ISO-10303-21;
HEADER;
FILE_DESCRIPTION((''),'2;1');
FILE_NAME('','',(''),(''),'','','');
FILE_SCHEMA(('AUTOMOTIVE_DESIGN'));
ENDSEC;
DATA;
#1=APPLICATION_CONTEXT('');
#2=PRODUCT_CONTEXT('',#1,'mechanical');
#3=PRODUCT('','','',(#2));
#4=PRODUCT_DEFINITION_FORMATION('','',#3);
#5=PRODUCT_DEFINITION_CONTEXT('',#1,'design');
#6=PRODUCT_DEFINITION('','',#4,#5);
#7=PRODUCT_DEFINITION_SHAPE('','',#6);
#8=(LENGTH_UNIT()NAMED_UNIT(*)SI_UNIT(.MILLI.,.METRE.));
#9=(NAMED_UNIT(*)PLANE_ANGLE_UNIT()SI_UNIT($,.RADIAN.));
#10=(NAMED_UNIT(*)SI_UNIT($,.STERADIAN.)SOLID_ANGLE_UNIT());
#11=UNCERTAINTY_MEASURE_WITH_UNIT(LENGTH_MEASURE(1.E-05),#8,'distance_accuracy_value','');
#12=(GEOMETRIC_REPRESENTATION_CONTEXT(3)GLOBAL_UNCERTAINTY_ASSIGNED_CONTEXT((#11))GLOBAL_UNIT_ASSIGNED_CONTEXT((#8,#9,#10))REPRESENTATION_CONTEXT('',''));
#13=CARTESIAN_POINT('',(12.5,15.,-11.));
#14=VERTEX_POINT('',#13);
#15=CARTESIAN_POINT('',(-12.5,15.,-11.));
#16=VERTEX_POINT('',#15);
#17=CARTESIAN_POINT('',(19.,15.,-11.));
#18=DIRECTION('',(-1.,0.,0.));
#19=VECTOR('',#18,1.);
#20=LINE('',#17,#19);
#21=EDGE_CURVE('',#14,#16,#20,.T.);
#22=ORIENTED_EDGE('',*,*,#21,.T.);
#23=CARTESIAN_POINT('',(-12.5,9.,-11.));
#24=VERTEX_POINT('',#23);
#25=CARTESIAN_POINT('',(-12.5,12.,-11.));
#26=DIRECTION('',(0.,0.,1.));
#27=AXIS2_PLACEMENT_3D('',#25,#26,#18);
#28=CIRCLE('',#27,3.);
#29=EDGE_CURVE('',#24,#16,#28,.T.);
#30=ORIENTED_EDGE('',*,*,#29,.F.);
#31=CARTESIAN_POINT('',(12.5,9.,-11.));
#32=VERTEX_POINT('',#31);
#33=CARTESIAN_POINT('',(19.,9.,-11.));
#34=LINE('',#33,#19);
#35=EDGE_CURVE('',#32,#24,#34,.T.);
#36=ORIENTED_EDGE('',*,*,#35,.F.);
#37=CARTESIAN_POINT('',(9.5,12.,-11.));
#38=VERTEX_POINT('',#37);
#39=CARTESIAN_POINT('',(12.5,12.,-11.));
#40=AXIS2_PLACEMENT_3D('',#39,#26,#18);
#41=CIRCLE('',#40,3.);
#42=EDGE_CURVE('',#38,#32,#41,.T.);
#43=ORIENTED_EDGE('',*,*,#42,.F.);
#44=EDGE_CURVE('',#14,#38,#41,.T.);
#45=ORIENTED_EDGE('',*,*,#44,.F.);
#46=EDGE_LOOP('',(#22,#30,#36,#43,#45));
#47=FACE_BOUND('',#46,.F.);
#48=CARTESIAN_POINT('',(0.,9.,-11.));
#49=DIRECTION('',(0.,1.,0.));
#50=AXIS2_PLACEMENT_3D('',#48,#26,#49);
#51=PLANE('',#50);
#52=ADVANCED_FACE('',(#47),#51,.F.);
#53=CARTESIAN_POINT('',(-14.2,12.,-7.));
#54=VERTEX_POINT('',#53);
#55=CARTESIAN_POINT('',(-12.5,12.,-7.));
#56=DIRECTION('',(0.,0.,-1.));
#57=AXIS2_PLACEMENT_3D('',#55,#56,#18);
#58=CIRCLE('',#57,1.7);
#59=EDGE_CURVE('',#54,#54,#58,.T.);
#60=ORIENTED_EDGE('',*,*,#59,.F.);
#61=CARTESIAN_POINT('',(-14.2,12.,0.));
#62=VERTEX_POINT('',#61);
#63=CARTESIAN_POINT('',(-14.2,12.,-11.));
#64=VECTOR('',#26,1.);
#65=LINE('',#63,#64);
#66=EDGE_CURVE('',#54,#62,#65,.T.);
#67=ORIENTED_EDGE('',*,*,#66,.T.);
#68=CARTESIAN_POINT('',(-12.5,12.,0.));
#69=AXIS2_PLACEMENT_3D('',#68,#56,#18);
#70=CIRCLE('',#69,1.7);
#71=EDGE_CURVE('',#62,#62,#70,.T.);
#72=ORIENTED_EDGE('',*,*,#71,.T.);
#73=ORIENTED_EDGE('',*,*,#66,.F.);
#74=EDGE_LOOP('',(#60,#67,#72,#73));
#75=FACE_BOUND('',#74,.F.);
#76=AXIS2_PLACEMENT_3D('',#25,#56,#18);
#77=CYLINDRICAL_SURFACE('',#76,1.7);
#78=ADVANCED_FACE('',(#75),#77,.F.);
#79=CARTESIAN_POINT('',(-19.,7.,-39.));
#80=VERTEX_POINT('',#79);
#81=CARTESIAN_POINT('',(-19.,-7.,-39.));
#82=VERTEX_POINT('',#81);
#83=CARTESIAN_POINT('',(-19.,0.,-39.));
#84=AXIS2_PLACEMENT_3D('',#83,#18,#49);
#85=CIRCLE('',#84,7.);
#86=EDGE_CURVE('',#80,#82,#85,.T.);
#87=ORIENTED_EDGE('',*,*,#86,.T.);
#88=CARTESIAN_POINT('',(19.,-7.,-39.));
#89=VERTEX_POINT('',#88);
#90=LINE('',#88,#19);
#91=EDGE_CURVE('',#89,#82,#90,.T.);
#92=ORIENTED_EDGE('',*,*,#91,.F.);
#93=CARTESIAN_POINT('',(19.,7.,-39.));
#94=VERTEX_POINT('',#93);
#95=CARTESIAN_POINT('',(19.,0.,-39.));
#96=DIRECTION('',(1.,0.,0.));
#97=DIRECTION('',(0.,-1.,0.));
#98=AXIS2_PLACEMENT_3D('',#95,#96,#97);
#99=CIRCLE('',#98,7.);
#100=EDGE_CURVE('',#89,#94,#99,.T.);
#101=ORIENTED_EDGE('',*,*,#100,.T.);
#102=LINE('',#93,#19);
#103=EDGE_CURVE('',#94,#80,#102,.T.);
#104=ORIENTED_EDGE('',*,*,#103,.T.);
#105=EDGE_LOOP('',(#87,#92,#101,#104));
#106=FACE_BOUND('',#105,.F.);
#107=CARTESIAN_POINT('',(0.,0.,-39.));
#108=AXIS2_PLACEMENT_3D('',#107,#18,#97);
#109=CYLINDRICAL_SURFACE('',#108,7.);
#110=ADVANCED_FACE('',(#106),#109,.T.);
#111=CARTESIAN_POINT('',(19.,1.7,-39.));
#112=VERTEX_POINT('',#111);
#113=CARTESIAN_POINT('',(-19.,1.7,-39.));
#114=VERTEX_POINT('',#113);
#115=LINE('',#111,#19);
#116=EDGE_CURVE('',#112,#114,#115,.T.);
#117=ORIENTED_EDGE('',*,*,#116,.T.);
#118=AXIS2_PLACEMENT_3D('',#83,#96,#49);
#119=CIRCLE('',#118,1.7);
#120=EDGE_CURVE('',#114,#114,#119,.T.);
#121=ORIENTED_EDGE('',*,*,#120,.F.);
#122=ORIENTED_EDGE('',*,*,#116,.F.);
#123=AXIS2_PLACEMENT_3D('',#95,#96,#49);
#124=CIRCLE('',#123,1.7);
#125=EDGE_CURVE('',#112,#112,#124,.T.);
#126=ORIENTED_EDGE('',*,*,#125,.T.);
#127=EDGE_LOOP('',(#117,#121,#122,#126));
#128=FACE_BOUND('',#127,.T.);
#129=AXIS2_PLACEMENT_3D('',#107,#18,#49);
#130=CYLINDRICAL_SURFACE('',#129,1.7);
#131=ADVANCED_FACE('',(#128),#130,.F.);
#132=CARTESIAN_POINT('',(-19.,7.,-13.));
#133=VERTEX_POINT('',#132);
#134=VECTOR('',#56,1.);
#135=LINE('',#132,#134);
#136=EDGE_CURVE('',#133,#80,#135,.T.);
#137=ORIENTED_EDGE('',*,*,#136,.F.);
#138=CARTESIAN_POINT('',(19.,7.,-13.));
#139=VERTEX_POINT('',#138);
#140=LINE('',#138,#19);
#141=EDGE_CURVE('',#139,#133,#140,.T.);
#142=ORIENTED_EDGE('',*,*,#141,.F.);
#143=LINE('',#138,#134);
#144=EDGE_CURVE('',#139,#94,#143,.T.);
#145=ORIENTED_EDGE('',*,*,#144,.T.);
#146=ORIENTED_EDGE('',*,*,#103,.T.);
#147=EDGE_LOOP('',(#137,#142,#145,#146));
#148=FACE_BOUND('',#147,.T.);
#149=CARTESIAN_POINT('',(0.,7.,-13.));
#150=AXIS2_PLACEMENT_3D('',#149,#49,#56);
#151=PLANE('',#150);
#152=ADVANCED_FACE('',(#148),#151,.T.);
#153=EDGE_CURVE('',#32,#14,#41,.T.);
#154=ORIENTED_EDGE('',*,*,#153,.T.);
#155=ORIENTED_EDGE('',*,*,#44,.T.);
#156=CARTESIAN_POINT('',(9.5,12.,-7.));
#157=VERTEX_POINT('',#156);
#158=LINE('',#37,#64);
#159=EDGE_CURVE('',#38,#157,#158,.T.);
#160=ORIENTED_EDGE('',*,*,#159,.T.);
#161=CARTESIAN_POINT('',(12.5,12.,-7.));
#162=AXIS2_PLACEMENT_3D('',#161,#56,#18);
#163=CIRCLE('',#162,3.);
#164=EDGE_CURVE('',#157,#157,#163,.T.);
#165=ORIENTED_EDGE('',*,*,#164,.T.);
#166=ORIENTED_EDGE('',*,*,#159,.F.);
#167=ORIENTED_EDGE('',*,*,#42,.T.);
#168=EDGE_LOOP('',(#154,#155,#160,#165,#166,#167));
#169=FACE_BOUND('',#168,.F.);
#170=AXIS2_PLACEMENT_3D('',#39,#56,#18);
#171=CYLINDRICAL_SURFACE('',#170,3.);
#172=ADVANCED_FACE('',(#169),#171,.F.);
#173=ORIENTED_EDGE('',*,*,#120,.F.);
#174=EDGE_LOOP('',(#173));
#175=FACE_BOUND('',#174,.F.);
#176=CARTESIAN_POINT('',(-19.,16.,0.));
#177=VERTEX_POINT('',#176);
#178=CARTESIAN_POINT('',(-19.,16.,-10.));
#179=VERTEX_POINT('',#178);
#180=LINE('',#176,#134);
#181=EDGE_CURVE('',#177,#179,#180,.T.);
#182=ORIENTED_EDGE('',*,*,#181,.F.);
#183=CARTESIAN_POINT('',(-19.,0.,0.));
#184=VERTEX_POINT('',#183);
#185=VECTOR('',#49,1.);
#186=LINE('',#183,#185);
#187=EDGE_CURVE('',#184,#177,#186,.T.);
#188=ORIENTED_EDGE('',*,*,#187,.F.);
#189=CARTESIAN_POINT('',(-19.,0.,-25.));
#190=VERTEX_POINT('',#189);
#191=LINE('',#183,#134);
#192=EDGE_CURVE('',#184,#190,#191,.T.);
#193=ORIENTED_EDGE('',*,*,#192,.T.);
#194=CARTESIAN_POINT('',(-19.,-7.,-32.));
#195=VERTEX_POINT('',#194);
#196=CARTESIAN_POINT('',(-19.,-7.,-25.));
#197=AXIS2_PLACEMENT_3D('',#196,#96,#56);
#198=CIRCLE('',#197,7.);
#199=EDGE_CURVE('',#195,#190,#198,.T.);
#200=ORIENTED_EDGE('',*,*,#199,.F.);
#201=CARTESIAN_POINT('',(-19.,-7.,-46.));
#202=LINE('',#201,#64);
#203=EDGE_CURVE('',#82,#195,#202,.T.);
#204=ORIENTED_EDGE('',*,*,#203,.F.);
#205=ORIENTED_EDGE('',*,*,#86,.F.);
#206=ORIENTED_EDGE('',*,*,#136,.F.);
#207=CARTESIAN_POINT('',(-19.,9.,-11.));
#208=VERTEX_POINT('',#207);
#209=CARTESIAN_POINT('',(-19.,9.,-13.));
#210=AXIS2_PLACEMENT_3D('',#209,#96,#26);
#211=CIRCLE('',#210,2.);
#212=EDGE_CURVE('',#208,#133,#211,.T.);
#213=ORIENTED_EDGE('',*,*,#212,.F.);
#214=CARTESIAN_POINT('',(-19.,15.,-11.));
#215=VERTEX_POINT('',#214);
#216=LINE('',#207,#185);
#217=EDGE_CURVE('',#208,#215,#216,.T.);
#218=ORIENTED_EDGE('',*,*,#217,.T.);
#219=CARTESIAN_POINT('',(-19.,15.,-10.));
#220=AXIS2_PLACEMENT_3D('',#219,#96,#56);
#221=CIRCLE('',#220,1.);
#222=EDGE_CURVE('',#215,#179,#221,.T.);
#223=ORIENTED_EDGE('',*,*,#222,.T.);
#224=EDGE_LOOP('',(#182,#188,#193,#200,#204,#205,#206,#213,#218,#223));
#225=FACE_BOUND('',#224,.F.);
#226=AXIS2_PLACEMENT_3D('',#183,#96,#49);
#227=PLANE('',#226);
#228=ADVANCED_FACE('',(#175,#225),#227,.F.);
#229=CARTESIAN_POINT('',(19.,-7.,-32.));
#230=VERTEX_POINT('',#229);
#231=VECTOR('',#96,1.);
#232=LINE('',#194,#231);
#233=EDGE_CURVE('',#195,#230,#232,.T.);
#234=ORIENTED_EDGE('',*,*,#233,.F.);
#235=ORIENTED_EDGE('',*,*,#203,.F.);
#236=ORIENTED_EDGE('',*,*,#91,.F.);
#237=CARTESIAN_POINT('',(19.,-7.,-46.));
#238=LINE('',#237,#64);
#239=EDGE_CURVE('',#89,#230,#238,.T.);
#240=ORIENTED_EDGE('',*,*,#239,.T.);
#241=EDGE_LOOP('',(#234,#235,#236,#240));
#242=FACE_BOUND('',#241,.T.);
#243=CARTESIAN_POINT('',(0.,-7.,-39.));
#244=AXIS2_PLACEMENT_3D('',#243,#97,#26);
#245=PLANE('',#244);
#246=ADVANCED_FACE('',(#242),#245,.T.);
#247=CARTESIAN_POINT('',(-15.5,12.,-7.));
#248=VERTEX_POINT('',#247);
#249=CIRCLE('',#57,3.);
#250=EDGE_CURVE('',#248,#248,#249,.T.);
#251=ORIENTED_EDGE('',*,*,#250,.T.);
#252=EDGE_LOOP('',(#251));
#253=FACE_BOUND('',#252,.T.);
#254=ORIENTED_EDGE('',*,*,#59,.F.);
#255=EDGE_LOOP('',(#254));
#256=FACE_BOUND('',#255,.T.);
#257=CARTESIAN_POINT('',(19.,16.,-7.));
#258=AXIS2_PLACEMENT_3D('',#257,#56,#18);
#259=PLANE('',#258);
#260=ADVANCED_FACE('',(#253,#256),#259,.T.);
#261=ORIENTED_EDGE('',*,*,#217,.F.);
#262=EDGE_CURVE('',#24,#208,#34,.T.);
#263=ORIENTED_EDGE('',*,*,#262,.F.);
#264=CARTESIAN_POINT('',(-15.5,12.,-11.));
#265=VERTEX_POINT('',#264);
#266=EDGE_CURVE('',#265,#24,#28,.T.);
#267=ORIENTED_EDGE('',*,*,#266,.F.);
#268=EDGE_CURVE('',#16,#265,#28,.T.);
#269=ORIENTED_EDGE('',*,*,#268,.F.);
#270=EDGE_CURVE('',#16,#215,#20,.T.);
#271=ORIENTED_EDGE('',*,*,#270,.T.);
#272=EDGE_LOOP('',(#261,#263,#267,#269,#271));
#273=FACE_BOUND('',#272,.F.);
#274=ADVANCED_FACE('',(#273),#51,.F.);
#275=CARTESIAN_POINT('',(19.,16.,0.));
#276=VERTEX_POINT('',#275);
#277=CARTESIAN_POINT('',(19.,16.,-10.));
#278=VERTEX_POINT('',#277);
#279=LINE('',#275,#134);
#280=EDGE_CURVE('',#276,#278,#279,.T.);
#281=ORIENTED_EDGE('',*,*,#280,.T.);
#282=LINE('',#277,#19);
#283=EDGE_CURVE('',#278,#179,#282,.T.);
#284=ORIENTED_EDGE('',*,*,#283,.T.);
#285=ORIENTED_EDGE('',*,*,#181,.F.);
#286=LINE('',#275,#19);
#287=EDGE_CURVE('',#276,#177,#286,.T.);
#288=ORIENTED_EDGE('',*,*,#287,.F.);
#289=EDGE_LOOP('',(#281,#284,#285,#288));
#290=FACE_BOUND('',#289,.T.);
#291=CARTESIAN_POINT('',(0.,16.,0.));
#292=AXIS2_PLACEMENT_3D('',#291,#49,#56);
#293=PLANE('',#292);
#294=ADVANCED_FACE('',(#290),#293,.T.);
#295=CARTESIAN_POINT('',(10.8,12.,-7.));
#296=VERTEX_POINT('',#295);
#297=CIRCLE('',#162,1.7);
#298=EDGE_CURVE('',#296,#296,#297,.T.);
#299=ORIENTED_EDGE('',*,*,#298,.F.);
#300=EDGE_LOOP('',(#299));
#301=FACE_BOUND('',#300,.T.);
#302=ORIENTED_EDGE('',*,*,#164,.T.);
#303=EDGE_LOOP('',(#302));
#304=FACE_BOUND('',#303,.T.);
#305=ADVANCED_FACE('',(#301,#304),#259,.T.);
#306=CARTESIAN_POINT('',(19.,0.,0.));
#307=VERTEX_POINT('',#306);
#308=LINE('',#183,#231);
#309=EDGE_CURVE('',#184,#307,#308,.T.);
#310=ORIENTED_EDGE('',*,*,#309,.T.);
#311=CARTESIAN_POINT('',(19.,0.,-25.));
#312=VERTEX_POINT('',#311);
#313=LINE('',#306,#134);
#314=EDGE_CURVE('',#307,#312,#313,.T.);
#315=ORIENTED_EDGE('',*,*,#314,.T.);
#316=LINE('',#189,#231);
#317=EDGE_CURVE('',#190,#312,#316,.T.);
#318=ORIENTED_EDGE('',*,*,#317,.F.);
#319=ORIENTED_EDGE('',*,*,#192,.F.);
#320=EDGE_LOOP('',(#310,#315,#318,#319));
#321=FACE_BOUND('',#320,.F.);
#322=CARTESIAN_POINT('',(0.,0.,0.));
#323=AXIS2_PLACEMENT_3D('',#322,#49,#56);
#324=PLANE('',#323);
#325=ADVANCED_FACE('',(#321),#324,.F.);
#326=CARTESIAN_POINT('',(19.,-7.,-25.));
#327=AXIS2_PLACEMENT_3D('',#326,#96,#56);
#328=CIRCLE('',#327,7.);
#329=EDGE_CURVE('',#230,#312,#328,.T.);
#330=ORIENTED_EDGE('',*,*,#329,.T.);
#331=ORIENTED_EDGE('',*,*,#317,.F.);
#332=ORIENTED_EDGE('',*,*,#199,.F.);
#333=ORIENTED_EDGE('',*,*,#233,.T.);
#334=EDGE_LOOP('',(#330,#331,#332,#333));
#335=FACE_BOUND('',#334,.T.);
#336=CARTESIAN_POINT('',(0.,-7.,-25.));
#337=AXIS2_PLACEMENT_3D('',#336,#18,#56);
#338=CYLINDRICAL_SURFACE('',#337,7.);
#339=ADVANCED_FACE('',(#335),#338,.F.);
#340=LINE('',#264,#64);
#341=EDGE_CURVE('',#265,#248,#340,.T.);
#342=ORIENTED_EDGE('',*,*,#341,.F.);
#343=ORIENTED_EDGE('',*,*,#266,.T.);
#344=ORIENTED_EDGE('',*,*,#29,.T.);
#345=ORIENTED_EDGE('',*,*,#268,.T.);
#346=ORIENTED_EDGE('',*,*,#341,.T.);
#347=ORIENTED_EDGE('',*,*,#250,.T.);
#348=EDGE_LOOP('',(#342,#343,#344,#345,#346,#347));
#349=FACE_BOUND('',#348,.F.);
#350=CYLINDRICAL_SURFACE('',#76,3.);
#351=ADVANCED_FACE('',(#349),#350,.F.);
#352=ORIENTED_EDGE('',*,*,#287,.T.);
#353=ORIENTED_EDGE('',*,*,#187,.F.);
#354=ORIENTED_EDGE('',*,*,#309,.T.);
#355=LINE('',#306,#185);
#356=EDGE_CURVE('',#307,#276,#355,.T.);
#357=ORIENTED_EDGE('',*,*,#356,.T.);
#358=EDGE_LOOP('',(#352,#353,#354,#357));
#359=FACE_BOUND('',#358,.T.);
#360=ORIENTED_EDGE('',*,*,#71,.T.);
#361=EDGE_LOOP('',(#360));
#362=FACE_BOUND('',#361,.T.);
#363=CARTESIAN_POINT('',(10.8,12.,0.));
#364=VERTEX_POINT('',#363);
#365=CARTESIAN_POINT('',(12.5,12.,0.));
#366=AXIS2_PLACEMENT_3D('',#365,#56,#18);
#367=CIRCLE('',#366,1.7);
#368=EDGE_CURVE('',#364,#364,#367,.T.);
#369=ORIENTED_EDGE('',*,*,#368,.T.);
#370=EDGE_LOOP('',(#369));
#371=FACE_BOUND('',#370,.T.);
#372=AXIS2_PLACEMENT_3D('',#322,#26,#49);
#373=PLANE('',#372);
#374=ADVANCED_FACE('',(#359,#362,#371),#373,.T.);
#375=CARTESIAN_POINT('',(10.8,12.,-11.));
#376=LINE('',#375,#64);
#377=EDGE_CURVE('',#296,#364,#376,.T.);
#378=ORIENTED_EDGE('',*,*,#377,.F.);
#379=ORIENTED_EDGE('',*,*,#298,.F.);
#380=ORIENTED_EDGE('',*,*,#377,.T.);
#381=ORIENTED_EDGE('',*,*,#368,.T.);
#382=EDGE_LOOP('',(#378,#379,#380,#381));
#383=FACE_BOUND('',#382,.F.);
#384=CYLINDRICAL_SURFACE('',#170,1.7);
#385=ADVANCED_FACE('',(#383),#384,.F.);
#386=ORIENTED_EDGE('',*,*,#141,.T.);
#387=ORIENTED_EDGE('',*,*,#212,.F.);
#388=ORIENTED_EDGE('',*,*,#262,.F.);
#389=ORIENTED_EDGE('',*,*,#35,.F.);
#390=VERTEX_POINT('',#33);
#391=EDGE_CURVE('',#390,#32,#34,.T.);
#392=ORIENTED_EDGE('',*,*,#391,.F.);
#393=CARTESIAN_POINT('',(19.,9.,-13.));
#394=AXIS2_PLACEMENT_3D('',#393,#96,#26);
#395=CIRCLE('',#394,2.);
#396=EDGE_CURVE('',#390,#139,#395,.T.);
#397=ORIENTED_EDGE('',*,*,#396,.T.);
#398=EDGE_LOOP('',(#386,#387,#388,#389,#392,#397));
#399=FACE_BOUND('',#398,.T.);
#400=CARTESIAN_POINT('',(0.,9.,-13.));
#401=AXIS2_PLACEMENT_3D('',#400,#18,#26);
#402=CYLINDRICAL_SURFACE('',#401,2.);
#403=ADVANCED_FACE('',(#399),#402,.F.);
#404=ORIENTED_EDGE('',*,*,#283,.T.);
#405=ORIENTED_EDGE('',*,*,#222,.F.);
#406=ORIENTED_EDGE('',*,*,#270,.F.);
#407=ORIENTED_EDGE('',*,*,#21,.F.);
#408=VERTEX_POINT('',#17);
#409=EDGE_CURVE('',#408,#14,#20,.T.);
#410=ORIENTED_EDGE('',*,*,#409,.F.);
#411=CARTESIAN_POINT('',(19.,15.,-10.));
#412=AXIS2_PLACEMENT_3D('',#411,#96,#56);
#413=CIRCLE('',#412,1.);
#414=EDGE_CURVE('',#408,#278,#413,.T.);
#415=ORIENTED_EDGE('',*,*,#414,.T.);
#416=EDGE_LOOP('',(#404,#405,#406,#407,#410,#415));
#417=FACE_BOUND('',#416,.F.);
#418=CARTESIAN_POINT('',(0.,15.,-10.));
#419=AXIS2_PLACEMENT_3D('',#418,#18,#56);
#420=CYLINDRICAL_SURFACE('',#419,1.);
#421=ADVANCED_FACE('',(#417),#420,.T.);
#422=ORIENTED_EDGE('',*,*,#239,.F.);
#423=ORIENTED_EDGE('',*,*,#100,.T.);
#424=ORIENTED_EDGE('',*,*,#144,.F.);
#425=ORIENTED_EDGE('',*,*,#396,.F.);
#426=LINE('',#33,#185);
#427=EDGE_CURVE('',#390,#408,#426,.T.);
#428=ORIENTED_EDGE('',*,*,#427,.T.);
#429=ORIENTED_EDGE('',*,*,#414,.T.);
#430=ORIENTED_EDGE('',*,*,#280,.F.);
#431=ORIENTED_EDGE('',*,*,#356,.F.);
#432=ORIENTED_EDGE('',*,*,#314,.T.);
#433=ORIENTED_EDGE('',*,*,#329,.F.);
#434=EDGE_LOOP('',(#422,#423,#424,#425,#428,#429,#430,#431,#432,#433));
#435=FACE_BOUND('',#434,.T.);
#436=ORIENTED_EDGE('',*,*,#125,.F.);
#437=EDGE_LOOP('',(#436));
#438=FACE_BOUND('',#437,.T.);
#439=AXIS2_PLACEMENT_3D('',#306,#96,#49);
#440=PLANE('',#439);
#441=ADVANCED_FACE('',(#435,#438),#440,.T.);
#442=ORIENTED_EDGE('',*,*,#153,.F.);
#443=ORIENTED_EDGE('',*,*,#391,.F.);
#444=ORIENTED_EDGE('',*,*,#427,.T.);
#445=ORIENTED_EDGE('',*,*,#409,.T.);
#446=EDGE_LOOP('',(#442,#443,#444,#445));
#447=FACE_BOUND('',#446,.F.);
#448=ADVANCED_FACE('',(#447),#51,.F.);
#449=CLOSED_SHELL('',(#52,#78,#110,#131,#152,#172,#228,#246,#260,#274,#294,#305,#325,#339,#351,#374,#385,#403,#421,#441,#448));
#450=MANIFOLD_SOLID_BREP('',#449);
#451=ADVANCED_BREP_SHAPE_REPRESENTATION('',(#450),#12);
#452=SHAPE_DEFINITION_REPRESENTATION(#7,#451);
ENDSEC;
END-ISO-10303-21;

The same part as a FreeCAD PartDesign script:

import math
import FreeCAD as App
import Part
import Sketcher
from FreeCAD import Vector
Q = App.Units.Quantity

doc = App.newDocument("Part")
body = doc.addObject("PartDesign::Body", "Body")

sketch1 = body.newObject("Sketcher::SketchObject", "Sketch")
sketch1.AttachmentSupport = (doc.getObject("YZ_Plane"), [""])
sketch1.MapMode = "FlatFace"
sketch1.addGeometry(Part.LineSegment(Vector(16, 0, 0), Vector(0, 0, 0)), False)
sketch1.addGeometry(Part.LineSegment(Vector(0, 0, 0), Vector(0, -25, 0)), False)
sketch1.addGeometry(Part.ArcOfCircle(Part.Circle(Vector(-7, -25, 0), Vector(0, 0, 1), 7), math.radians(-90), math.radians(0)), False)
sketch1.addGeometry(Part.LineSegment(Vector(-7, -32, 0), Vector(-7, -39, 0)), False)
sketch1.addGeometry(Part.ArcOfCircle(Part.Circle(Vector(0, -39, 0), Vector(0, 0, 1), 7), math.radians(180), math.radians(360)), False)
sketch1.addGeometry(Part.LineSegment(Vector(7, -39, 0), Vector(7, -13, 0)), False)
sketch1.addGeometry(Part.ArcOfCircle(Part.Circle(Vector(9, -13, 0), Vector(0, 0, 1), 2), math.radians(90), math.radians(180)), False)
sketch1.addGeometry(Part.LineSegment(Vector(9, -11, 0), Vector(15, -11, 0)), False)
sketch1.addGeometry(Part.ArcOfCircle(Part.Circle(Vector(15, -10, 0), Vector(0, 0, 1), 1), math.radians(-90), math.radians(0)), False)
sketch1.addGeometry(Part.LineSegment(Vector(16, -10, 0), Vector(16, 0, 0)), False)
sketch1.addGeometry(Part.Circle(Vector(0, -39, 0), Vector(0, 0, 1), 1.7), False)
sketch1.addConstraint(Sketcher.Constraint("Coincident", 0, 2, 1, 1))
sketch1.addConstraint(Sketcher.Constraint("Tangent", 1, 2, 2, 2))
sketch1.addConstraint(Sketcher.Constraint("Coincident", 2, 1, 3, 1))
sketch1.addConstraint(Sketcher.Constraint("Tangent", 3, 2, 4, 1))
sketch1.addConstraint(Sketcher.Constraint("Tangent", 4, 2, 5, 1))
sketch1.addConstraint(Sketcher.Constraint("Tangent", 5, 2, 6, 2))
sketch1.addConstraint(Sketcher.Constraint("Tangent", 6, 1, 7, 1))
sketch1.addConstraint(Sketcher.Constraint("Tangent", 7, 2, 8, 1))
sketch1.addConstraint(Sketcher.Constraint("Tangent", 8, 2, 9, 1))
sketch1.addConstraint(Sketcher.Constraint("Coincident", 9, 2, 0, 1))
sketch1.addConstraint(Sketcher.Constraint("Horizontal", 0))
sketch1.addConstraint(Sketcher.Constraint("Vertical", 1))
sketch1.addConstraint(Sketcher.Constraint("Vertical", 3))
sketch1.addConstraint(Sketcher.Constraint("Vertical", 5))
sketch1.addConstraint(Sketcher.Constraint("Horizontal", 7))
sketch1.addConstraint(Sketcher.Constraint("Vertical", 9))
sketch1.addConstraint(Sketcher.Constraint("Coincident", 0, 2, -1, 1))
sketch1.addConstraint(Sketcher.Constraint("Coincident", 10, 3, 4, 3))
sketch1.addConstraint(Sketcher.Constraint("Equal", 2, 4))
sketch1.addConstraint(Sketcher.Constraint("PointOnObject", 4, 3, -2))
sketch1.addConstraint(Sketcher.Constraint("Radius", 2, Q("7 mm")))
sketch1.addConstraint(Sketcher.Constraint("Radius", 6, Q("2 mm")))
sketch1.addConstraint(Sketcher.Constraint("Radius", 8, Q("1 mm")))
sketch1.addConstraint(Sketcher.Constraint("Diameter", 10, Q("3.4 mm")))
sketch1.addConstraint(Sketcher.Constraint("DistanceX", 0, 2, 0, 1, Q("16 mm")))
sketch1.addConstraint(Sketcher.Constraint("DistanceY", 4, 3, -1, 1, Q("39 mm")))
sketch1.addConstraint(Sketcher.Constraint("DistanceY", 6, 1, -1, 1, Q("11 mm")))
sketch1.addConstraint(Sketcher.Constraint("DistanceY", 4, 3, 2, 3, Q("14 mm")))
pad1 = body.newObject("PartDesign::Pad", "Pad")
pad1.Profile = sketch1
pad1.Length = 38
pad1.Midplane = True

sketch2 = body.newObject("Sketcher::SketchObject", "Sketch001")
sketch2.AttachmentSupport = (doc.getObject("XY_Plane"), [""])
sketch2.MapMode = "FlatFace"
sketch2.AttachmentOffset = App.Placement(Vector(0, 0, -11), App.Rotation())
sketch2.addGeometry(Part.Circle(Vector(12.5, 12, 0), Vector(0, 0, 1), 1.7), False)
sketch2.addGeometry(Part.Circle(Vector(-12.5, 12, 0), Vector(0, 0, 1), 1.7), False)
sketch2.addConstraint(Sketcher.Constraint("Equal", 0, 1))
sketch2.addConstraint(Sketcher.Constraint("Symmetric", 0, 3, 1, 3, -2))
sketch2.addConstraint(Sketcher.Constraint("Diameter", 0, Q("3.4 mm")))
sketch2.addConstraint(Sketcher.Constraint("DistanceX", 1, 3, 0, 3, Q("25 mm")))
sketch2.addConstraint(Sketcher.Constraint("DistanceY", -1, 1, 0, 3, Q("12 mm")))
pocket1 = body.newObject("PartDesign::Pocket", "Pocket")
pocket1.Profile = sketch2
pocket1.Type = "ThroughAll"
pocket1.Reversed = True

sketch3 = body.newObject("Sketcher::SketchObject", "Sketch002")
sketch3.AttachmentSupport = (doc.getObject("XY_Plane"), [""])
sketch3.MapMode = "FlatFace"
sketch3.AttachmentOffset = App.Placement(Vector(0, 0, -11), App.Rotation())
sketch3.addGeometry(Part.Circle(Vector(12.5, 12, 0), Vector(0, 0, 1), 3), False)
sketch3.addGeometry(Part.Circle(Vector(12.5, 12, 0), Vector(0, 0, 1), 1.7), False)
sketch3.addGeometry(Part.Circle(Vector(-12.5, 12, 0), Vector(0, 0, 1), 3), False)
sketch3.addGeometry(Part.Circle(Vector(-12.5, 12, 0), Vector(0, 0, 1), 1.7), False)
sketch3.addConstraint(Sketcher.Constraint("Coincident", 1, 3, 0, 3))
sketch3.addConstraint(Sketcher.Constraint("Coincident", 3, 3, 2, 3))
sketch3.addConstraint(Sketcher.Constraint("Equal", 0, 2))
sketch3.addConstraint(Sketcher.Constraint("Equal", 1, 3))
sketch3.addConstraint(Sketcher.Constraint("Symmetric", 0, 3, 2, 3, -2))
sketch3.addConstraint(Sketcher.Constraint("Diameter", 0, Q("6 mm")))
sketch3.addConstraint(Sketcher.Constraint("Diameter", 1, Q("3.4 mm")))
sketch3.addConstraint(Sketcher.Constraint("DistanceX", 2, 3, 0, 3, Q("25 mm")))
sketch3.addConstraint(Sketcher.Constraint("DistanceY", -1, 1, 0, 3, Q("12 mm")))
pocket2 = body.newObject("PartDesign::Pocket", "Pocket001")
pocket2.Profile = sketch3
pocket2.Length = 4
pocket2.Reversed = True

doc.recompute()
